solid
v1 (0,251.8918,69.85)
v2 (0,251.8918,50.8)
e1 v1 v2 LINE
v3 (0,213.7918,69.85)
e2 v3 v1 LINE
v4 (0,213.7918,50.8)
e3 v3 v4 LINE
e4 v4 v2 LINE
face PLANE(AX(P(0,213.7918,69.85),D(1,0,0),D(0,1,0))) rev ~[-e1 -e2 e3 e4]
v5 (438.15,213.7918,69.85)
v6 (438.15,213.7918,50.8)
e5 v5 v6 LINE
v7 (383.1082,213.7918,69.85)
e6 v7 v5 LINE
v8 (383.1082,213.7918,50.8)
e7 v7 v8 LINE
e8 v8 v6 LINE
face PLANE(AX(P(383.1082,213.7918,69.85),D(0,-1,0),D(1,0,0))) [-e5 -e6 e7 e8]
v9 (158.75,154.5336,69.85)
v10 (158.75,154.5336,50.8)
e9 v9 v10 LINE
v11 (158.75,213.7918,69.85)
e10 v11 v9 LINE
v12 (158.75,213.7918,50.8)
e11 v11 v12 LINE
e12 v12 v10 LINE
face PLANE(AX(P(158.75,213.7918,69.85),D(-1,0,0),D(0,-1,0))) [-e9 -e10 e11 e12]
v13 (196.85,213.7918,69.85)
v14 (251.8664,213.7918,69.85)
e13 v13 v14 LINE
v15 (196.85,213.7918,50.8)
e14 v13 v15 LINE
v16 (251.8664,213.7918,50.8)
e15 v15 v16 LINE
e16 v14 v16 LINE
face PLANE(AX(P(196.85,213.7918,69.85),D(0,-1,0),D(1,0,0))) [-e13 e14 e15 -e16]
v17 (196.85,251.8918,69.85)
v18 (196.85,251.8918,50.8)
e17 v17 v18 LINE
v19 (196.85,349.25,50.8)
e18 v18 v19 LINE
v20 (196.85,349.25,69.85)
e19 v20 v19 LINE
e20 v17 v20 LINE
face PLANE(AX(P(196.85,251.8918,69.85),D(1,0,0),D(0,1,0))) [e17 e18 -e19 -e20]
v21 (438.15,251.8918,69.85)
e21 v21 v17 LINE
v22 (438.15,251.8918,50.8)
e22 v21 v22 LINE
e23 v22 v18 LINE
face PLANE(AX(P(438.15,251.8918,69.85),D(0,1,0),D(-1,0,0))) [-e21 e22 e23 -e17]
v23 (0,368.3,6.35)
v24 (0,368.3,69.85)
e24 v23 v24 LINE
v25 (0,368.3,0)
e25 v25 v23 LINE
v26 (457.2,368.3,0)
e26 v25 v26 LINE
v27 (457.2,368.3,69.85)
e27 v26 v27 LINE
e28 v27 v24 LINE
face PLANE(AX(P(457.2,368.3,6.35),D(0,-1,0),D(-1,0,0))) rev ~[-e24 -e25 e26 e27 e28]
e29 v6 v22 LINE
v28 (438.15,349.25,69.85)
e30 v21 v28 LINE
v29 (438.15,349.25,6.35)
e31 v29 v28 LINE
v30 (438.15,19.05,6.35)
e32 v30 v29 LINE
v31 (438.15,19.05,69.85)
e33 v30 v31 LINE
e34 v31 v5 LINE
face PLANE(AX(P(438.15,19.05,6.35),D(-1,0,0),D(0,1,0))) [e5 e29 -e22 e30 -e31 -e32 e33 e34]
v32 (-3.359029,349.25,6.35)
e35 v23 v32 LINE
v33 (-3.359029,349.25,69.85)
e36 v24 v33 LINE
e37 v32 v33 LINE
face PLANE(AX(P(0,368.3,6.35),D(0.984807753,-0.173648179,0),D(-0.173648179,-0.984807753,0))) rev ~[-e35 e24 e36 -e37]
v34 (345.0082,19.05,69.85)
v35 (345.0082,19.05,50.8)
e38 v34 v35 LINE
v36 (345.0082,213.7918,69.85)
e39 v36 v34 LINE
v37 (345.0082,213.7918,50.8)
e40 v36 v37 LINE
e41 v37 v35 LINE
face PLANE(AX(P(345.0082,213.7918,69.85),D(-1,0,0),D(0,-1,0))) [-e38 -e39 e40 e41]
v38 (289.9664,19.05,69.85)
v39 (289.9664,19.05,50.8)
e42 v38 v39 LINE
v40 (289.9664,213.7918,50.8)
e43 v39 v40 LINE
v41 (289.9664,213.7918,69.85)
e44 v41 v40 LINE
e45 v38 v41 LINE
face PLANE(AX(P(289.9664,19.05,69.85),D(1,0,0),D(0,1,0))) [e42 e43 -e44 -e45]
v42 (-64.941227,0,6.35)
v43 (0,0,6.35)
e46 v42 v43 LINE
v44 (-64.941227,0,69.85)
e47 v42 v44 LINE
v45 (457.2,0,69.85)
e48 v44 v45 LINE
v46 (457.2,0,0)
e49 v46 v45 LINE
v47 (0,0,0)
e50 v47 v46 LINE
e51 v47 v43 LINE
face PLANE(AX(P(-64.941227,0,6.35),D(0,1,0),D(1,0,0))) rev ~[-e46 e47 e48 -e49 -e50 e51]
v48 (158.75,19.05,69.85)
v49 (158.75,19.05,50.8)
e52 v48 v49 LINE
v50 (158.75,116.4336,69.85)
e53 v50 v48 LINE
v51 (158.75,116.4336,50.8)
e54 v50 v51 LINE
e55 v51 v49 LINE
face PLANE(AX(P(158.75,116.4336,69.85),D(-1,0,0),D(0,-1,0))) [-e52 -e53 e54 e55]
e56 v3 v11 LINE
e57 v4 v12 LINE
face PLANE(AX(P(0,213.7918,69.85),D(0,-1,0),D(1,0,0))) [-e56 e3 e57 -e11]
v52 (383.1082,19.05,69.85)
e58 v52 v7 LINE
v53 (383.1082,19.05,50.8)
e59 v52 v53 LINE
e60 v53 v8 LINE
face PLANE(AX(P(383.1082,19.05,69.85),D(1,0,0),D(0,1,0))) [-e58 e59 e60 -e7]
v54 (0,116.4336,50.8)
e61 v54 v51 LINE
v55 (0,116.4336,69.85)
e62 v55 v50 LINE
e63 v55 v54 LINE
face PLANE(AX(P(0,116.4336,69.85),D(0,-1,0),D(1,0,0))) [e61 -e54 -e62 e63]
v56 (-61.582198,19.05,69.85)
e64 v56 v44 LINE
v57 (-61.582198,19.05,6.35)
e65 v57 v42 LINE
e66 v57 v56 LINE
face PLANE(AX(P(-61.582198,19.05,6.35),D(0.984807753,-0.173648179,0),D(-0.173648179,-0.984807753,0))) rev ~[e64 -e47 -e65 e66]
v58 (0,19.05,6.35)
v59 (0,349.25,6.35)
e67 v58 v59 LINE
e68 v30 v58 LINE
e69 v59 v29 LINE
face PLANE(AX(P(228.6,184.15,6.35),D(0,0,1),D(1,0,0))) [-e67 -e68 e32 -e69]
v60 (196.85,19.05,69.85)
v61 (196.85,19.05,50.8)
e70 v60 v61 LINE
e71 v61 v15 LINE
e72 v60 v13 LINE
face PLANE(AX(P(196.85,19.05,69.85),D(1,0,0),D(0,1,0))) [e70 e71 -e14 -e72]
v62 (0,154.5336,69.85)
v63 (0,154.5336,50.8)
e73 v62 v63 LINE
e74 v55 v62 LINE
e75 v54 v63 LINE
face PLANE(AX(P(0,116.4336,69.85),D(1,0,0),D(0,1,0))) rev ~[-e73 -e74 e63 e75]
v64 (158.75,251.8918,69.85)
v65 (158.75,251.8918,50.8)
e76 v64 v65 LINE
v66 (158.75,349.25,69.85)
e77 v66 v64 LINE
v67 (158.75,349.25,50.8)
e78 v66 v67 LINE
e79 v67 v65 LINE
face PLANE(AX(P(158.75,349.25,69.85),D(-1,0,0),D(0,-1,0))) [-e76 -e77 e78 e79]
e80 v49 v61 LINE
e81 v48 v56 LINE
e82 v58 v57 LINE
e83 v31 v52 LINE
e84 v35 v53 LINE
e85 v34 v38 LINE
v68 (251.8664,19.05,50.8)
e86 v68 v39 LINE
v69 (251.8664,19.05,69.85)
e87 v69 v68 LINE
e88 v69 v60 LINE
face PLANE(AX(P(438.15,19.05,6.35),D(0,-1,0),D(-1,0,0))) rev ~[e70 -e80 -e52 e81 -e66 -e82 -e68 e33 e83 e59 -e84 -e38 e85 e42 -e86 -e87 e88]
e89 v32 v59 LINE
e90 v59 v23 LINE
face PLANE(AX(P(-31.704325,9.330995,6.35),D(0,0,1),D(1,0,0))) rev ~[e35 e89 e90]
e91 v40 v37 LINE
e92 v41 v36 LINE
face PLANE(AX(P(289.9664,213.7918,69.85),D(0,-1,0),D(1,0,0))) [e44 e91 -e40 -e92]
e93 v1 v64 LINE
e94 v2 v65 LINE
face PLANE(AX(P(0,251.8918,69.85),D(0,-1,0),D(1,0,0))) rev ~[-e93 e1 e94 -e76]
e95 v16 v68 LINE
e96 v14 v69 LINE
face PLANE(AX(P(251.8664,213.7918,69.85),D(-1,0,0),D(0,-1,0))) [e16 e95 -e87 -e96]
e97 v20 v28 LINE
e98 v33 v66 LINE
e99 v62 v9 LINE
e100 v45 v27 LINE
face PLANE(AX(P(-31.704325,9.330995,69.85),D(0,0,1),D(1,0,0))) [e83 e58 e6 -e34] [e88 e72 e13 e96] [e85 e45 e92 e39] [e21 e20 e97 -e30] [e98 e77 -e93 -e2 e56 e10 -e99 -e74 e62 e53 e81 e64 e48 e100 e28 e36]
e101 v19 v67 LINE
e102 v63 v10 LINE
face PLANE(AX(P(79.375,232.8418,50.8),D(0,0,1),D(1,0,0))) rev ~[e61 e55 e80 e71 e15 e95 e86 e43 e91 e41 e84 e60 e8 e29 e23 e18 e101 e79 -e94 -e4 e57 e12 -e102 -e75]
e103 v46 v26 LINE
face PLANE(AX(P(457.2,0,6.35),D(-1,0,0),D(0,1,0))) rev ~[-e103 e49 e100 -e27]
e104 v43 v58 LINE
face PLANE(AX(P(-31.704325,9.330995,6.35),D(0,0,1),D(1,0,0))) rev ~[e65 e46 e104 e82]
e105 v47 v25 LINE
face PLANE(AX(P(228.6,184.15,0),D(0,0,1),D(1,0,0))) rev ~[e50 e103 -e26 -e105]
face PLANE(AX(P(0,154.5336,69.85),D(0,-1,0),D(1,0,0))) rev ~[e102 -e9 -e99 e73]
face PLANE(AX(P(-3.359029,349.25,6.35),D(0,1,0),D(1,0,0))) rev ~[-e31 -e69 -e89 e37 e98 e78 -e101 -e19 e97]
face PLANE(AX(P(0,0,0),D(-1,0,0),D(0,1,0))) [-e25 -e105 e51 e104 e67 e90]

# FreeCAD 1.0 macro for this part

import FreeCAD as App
import Part
import Sketcher
from FreeCAD import Vector
Q = App.Units.Quantity

doc = App.newDocument("Part")
body = doc.addObject("PartDesign::Body", "Body")

# Sketch on XY plane
sketch1 = body.newObject("Sketcher::SketchObject", "Sketch")
sketch1.AttachmentSupport = (doc.getObject("XY_Plane"), [""])
sketch1.MapMode = "FlatFace"
sketch1.addGeometry(Part.LineSegment(Vector(0, 368, 0), Vector(0, 0, 0)), False)
sketch1.addGeometry(Part.LineSegment(Vector(0, 0, 0), Vector(457, 0, 0)), False)
sketch1.addGeometry(Part.LineSegment(Vector(457, 0, 0), Vector(457, 368, 0)), False)
sketch1.addGeometry(Part.LineSegment(Vector(457, 368, 0), Vector(0, 368, 0)), False)
sketch1.addConstraint(Sketcher.Constraint("Coincident", 0, 2, 1, 1))
sketch1.addConstraint(Sketcher.Constraint("Coincident", 1, 2, 2, 1))
sketch1.addConstraint(Sketcher.Constraint("Coincident", 2, 2, 3, 1))
sketch1.addConstraint(Sketcher.Constraint("Coincident", 3, 2, 0, 1))
sketch1.addConstraint(Sketcher.Constraint("Vertical", 0))
sketch1.addConstraint(Sketcher.Constraint("Horizontal", 1))
sketch1.addConstraint(Sketcher.Constraint("Vertical", 2))
sketch1.addConstraint(Sketcher.Constraint("Horizontal", 3))
sketch1.addConstraint(Sketcher.Constraint("Coincident", 0, 2, -1, 1))
sketch1.addConstraint(Sketcher.Constraint("DistanceX", 1, 1, 1, 2, Q("18 in")))
sketch1.addConstraint(Sketcher.Constraint("DistanceY", 0, 2, 0, 1, Q("14.5 in")))
pad1 = body.newObject("PartDesign::Pad", "Pad")
pad1.Profile = sketch1
pad1.Length = Q("0.25 in")

# Sketch on XY plane
sketch2 = body.newObject("Sketcher::SketchObject", "Sketch001")
sketch2.AttachmentSupport = (doc.getObject("XY_Plane"), [""])
sketch2.MapMode = "FlatFace"
sketch2.AttachmentOffset = App.Placement(Vector(0, 0, 0.25 * 25.4), App.Rotation())
sketch2.addGeometry(Part.LineSegment(Vector(-62, 19, 0), Vector(-65, 0, 0)), False)
sketch2.addGeometry(Part.LineSegment(Vector(-65, 0, 0), Vector(457, 0, 0)), False)
sketch2.addGeometry(Part.LineSegment(Vector(457, 0, 0), Vector(457, 368, 0)), False)
sketch2.addGeometry(Part.LineSegment(Vector(457, 368, 0), Vector(0, 368, 0)), False)
sketch2.addGeometry(Part.LineSegment(Vector(0, 368, 0), Vector(-3, 349, 0)), False)
sketch2.addGeometry(Part.LineSegment(Vector(-3, 349, 0), Vector(438, 349, 0)), False)
sketch2.addGeometry(Part.LineSegment(Vector(438, 349, 0), Vector(438, 19, 0)), False)
sketch2.addGeometry(Part.LineSegment(Vector(438, 19, 0), Vector(-62, 19, 0)), False)
sketch2.addConstraint(Sketcher.Constraint("Coincident", 0, 2, 1, 1))
sketch2.addConstraint(Sketcher.Constraint("Coincident", 1, 2, 2, 1))
sketch2.addConstraint(Sketcher.Constraint("Coincident", 2, 2, 3, 1))
sketch2.addConstraint(Sketcher.Constraint("Coincident", 3, 2, 4, 1))
sketch2.addConstraint(Sketcher.Constraint("Coincident", 4, 2, 5, 1))
sketch2.addConstraint(Sketcher.Constraint("Coincident", 5, 2, 6, 1))
sketch2.addConstraint(Sketcher.Constraint("Coincident", 6, 2, 7, 1))
sketch2.addConstraint(Sketcher.Constraint("Coincident", 7, 2, 0, 1))
sketch2.addConstraint(Sketcher.Constraint("Horizontal", 1))
sketch2.addConstraint(Sketcher.Constraint("Vertical", 2))
sketch2.addConstraint(Sketcher.Constraint("Horizontal", 3))
sketch2.addConstraint(Sketcher.Constraint("Horizontal", 5))
sketch2.addConstraint(Sketcher.Constraint("Vertical", 6))
sketch2.addConstraint(Sketcher.Constraint("Horizontal", 7))
sketch2.addConstraint(Sketcher.Constraint("PointOnObject", 0, 2, -1))
sketch2.addConstraint(Sketcher.Constraint("PointOnObject", 3, 2, -2))
sketch2.addConstraint(Sketcher.Constraint("Parallel", 0, 4))
sketch2.addConstraint(Sketcher.Constraint("Equal", 0, 4))
sketch2.addConstraint(Sketcher.Constraint("DistanceX", 3, 2, 3, 1, Q("18 in")))
sketch2.addConstraint(Sketcher.Constraint("DistanceY", 6, 2, 6, 1, Q("13 in")))
sketch2.addConstraint(Sketcher.Constraint("DistanceY", 2, 1, 2, 2, Q("14.5 in")))
sketch2.addConstraint(Sketcher.Constraint("Angle", 0, Q("-100 deg")))
sketch2.addConstraint(Sketcher.Constraint("DistanceX", -1, 1, 5, 2, Q("17.25 in")))
sketch2.addConstraint(Sketcher.Constraint("DistanceX", 7, 2, 7, 1, Q("499.732198 mm")))
pad2 = body.newObject("PartDesign::Pad", "Pad001")
pad2.Profile = sketch2
pad2.Length = Q("2.5 in")

# Sketch on XY plane
sketch3 = body.newObject("Sketcher::SketchObject", "Sketch002")
sketch3.AttachmentSupport = (doc.getObject("XY_Plane"), [""])
sketch3.MapMode = "FlatFace"
sketch3.AttachmentOffset = App.Placement(Vector(0, 0, 2.75 * 25.4), App.Rotation())
sketch3.addGeometry(Part.LineSegment(Vector(0, 252, 0), Vector(0, 214, 0)), False)
sketch3.addGeometry(Part.LineSegment(Vector(0, 214, 0), Vector(159, 214, 0)), False)
sketch3.addGeometry(Part.LineSegment(Vector(159, 214, 0), Vector(159, 155, 0)), False)
sketch3.addGeometry(Part.LineSegment(Vector(159, 155, 0), Vector(0, 155, 0)), False)
sketch3.addGeometry(Part.LineSegment(Vector(0, 155, 0), Vector(0, 116, 0)), False)
sketch3.addGeometry(Part.LineSegment(Vector(0, 116, 0), Vector(159, 116, 0)), False)
sketch3.addGeometry(Part.LineSegment(Vector(159, 116, 0), Vector(159, 19, 0)), False)
sketch3.addGeometry(Part.LineSegment(Vector(159, 19, 0), Vector(197, 19, 0)), False)
sketch3.addGeometry(Part.LineSegment(Vector(197, 19, 0), Vector(197, 214, 0)), False)
sketch3.addGeometry(Part.LineSegment(Vector(197, 214, 0), Vector(252, 214, 0)), False)
sketch3.addGeometry(Part.LineSegment(Vector(252, 214, 0), Vector(252, 19, 0)), False)
sketch3.addGeometry(Part.LineSegment(Vector(252, 19, 0), Vector(290, 19, 0)), False)
sketch3.addGeometry(Part.LineSegment(Vector(290, 19, 0), Vector(290, 214, 0)), False)
sketch3.addGeometry(Part.LineSegment(Vector(290, 214, 0), Vector(345, 214, 0)), False)
sketch3.addGeometry(Part.LineSegment(Vector(345, 214, 0), Vector(345, 19, 0)), False)
sketch3.addGeometry(Part.LineSegment(Vector(345, 19, 0), Vector(383, 19, 0)), False)
sketch3.addGeometry(Part.LineSegment(Vector(383, 19, 0), Vector(383, 214, 0)), False)
sketch3.addGeometry(Part.LineSegment(Vector(383, 214, 0), Vector(438, 214, 0)), False)
sketch3.addGeometry(Part.LineSegment(Vector(438, 214, 0), Vector(438, 252, 0)), False)
sketch3.addGeometry(Part.LineSegment(Vector(438, 252, 0), Vector(197, 252, 0)), False)
sketch3.addGeometry(Part.LineSegment(Vector(197, 252, 0), Vector(197, 349, 0)), False)
sketch3.addGeometry(Part.LineSegment(Vector(197, 349, 0), Vector(159, 349, 0)), False)
sketch3.addGeometry(Part.LineSegment(Vector(159, 349, 0), Vector(159, 252, 0)), False)
sketch3.addGeometry(Part.LineSegment(Vector(159, 252, 0), Vector(0, 252, 0)), False)
sketch3.addConstraint(Sketcher.Constraint("Coincident", 0, 2, 1, 1))
sketch3.addConstraint(Sketcher.Constraint("Coincident", 1, 2, 2, 1))
sketch3.addConstraint(Sketcher.Constraint("Coincident", 2, 2, 3, 1))
sketch3.addConstraint(Sketcher.Constraint("Coincident", 3, 2, 4, 1))
sketch3.addConstraint(Sketcher.Constraint("Coincident", 4, 2, 5, 1))
sketch3.addConstraint(Sketcher.Constraint("Coincident", 5, 2, 6, 1))
sketch3.addConstraint(Sketcher.Constraint("Coincident", 6, 2, 7, 1))
sketch3.addConstraint(Sketcher.Constraint("Coincident", 7, 2, 8, 1))
sketch3.addConstraint(Sketcher.Constraint("Coincident", 8, 2, 9, 1))
sketch3.addConstraint(Sketcher.Constraint("Coincident", 9, 2, 10, 1))
sketch3.addConstraint(Sketcher.Constraint("Coincident", 10, 2, 11, 1))
sketch3.addConstraint(Sketcher.Constraint("Coincident", 11, 2, 12, 1))
sketch3.addConstraint(Sketcher.Constraint("Coincident", 12, 2, 13, 1))
sketch3.addConstraint(Sketcher.Constraint("Coincident", 13, 2, 14, 1))
sketch3.addConstraint(Sketcher.Constraint("Coincident", 14, 2, 15, 1))
sketch3.addConstraint(Sketcher.Constraint("Coincident", 15, 2, 16, 1))
sketch3.addConstraint(Sketcher.Constraint("Coincident", 16, 2, 17, 1))
sketch3.addConstraint(Sketcher.Constraint("Coincident", 17, 2, 18, 1))
sketch3.addConstraint(Sketcher.Constraint("Coincident", 18, 2, 19, 1))
sketch3.addConstraint(Sketcher.Constraint("Coincident", 19, 2, 20, 1))
sketch3.addConstraint(Sketcher.Constraint("Coincident", 20, 2, 21, 1))
sketch3.addConstraint(Sketcher.Constraint("Coincident", 21, 2, 22, 1))
sketch3.addConstraint(Sketcher.Constraint("Coincident", 22, 2, 23, 1))
sketch3.addConstraint(Sketcher.Constraint("Coincident", 23, 2, 0, 1))
sketch3.addConstraint(Sketcher.Constraint("Vertical", 0))
sketch3.addConstraint(Sketcher.Constraint("Horizontal", 1))
sketch3.addConstraint(Sketcher.Constraint("Vertical", 2))
sketch3.addConstraint(Sketcher.Constraint("Horizontal", 3))
sketch3.addConstraint(Sketcher.Constraint("Vertical", 4))
sketch3.addConstraint(Sketcher.Constraint("Horizontal", 5))
sketch3.addConstraint(Sketcher.Constraint("Vertical", 6))
sketch3.addConstraint(Sketcher.Constraint("Horizontal", 7))
sketch3.addConstraint(Sketcher.Constraint("Vertical", 8))
sketch3.addConstraint(Sketcher.Constraint("Horizontal", 9))
sketch3.addConstraint(Sketcher.Constraint("Vertical", 10))
sketch3.addConstraint(Sketcher.Constraint("Horizontal", 11))
sketch3.addConstraint(Sketcher.Constraint("Vertical", 12))
sketch3.addConstraint(Sketcher.Constraint("Horizontal", 13))
sketch3.addConstraint(Sketcher.Constraint("Vertical", 14))
sketch3.addConstraint(Sketcher.Constraint("Horizontal", 15))
sketch3.addConstraint(Sketcher.Constraint("Vertical", 16))
sketch3.addConstraint(Sketcher.Constraint("Horizontal", 17))
sketch3.addConstraint(Sketcher.Constraint("Vertical", 18))
sketch3.addConstraint(Sketcher.Constraint("Horizontal", 19))
sketch3.addConstraint(Sketcher.Constraint("Vertical", 20))
sketch3.addConstraint(Sketcher.Constraint("Horizontal", 21))
sketch3.addConstraint(Sketcher.Constraint("Vertical", 22))
sketch3.addConstraint(Sketcher.Constraint("Horizontal", 23))
sketch3.addConstraint(Sketcher.Constraint("PointOnObject", 0, 2, -2))
sketch3.addConstraint(Sketcher.Constraint("PointOnObject", 3, 2, -2))
sketch3.addConstraint(Sketcher.Constraint("Horizontal", 1, 2, 8, 2))
sketch3.addConstraint(Sketcher.Constraint("Horizontal", 7, 2, 10, 2))
sketch3.addConstraint(Sketcher.Constraint("Horizontal", 9, 2, 12, 2))
sketch3.addConstraint(Sketcher.Constraint("Horizontal", 11, 2, 14, 2))
sketch3.addConstraint(Sketcher.Constraint("Horizontal", 13, 2, 16, 2))
sketch3.addConstraint(Sketcher.Constraint("Horizontal", 19, 2, 22, 2))
sketch3.addConstraint(Sketcher.Constraint("Vertical", 2, 2, 5, 2))
sketch3.addConstraint(Sketcher.Constraint("Vertical", 8, 2, 19, 2))
sketch3.addConstraint(Sketcher.Constraint("Vertical", 6, 2, 21, 2))
sketch3.addConstraint(Sketcher.Constraint("Equal", 7, 11))
sketch3.addConstraint(Sketcher.Constraint("Equal", 11, 15))
sketch3.addConstraint(Sketcher.Constraint("Equal", 13, 17))
sketch3.addConstraint(Sketcher.Constraint("Equal", 21, 0))
sketch3.addConstraint(Sketcher.Constraint("Equal", 0, 4))
sketch3.addConstraint(Sketcher.Constraint("DistanceX", 7, 1, 7, 2, Q("1.5 in")))
sketch3.addConstraint(Sketcher.Constraint("DistanceX", 19, 2, 19, 1, Q("9.5 in")))
sketch3.addConstraint(Sketcher.Constraint("DistanceX", 1, 1, 1, 2, Q("6.25 in")))
sketch3.addConstraint(Sketcher.Constraint("DistanceX", 9, 1, 9, 2, Q("2.166 in")))
sketch3.addConstraint(Sketcher.Constraint("DistanceY", 2, 2, 2, 1, Q("2.333 in")))
sketch3.addConstraint(Sketcher.Constraint("DistanceY", 6, 2, 6, 1, Q("3.834 in")))
sketch3.addConstraint(Sketcher.Constraint("DistanceY", 20, 1, 20, 2, Q("3.833 in")))
sketch3.addConstraint(Sketcher.Constraint("DistanceY", -1, 1, 6, 2, Q("0.75 in")))
pad3 = body.newObject("PartDesign::Pad", "Pad002")
pad3.Profile = sketch3
pad3.Length = Q("0.75 in")
pad3.Reversed = True

doc.recompute()
